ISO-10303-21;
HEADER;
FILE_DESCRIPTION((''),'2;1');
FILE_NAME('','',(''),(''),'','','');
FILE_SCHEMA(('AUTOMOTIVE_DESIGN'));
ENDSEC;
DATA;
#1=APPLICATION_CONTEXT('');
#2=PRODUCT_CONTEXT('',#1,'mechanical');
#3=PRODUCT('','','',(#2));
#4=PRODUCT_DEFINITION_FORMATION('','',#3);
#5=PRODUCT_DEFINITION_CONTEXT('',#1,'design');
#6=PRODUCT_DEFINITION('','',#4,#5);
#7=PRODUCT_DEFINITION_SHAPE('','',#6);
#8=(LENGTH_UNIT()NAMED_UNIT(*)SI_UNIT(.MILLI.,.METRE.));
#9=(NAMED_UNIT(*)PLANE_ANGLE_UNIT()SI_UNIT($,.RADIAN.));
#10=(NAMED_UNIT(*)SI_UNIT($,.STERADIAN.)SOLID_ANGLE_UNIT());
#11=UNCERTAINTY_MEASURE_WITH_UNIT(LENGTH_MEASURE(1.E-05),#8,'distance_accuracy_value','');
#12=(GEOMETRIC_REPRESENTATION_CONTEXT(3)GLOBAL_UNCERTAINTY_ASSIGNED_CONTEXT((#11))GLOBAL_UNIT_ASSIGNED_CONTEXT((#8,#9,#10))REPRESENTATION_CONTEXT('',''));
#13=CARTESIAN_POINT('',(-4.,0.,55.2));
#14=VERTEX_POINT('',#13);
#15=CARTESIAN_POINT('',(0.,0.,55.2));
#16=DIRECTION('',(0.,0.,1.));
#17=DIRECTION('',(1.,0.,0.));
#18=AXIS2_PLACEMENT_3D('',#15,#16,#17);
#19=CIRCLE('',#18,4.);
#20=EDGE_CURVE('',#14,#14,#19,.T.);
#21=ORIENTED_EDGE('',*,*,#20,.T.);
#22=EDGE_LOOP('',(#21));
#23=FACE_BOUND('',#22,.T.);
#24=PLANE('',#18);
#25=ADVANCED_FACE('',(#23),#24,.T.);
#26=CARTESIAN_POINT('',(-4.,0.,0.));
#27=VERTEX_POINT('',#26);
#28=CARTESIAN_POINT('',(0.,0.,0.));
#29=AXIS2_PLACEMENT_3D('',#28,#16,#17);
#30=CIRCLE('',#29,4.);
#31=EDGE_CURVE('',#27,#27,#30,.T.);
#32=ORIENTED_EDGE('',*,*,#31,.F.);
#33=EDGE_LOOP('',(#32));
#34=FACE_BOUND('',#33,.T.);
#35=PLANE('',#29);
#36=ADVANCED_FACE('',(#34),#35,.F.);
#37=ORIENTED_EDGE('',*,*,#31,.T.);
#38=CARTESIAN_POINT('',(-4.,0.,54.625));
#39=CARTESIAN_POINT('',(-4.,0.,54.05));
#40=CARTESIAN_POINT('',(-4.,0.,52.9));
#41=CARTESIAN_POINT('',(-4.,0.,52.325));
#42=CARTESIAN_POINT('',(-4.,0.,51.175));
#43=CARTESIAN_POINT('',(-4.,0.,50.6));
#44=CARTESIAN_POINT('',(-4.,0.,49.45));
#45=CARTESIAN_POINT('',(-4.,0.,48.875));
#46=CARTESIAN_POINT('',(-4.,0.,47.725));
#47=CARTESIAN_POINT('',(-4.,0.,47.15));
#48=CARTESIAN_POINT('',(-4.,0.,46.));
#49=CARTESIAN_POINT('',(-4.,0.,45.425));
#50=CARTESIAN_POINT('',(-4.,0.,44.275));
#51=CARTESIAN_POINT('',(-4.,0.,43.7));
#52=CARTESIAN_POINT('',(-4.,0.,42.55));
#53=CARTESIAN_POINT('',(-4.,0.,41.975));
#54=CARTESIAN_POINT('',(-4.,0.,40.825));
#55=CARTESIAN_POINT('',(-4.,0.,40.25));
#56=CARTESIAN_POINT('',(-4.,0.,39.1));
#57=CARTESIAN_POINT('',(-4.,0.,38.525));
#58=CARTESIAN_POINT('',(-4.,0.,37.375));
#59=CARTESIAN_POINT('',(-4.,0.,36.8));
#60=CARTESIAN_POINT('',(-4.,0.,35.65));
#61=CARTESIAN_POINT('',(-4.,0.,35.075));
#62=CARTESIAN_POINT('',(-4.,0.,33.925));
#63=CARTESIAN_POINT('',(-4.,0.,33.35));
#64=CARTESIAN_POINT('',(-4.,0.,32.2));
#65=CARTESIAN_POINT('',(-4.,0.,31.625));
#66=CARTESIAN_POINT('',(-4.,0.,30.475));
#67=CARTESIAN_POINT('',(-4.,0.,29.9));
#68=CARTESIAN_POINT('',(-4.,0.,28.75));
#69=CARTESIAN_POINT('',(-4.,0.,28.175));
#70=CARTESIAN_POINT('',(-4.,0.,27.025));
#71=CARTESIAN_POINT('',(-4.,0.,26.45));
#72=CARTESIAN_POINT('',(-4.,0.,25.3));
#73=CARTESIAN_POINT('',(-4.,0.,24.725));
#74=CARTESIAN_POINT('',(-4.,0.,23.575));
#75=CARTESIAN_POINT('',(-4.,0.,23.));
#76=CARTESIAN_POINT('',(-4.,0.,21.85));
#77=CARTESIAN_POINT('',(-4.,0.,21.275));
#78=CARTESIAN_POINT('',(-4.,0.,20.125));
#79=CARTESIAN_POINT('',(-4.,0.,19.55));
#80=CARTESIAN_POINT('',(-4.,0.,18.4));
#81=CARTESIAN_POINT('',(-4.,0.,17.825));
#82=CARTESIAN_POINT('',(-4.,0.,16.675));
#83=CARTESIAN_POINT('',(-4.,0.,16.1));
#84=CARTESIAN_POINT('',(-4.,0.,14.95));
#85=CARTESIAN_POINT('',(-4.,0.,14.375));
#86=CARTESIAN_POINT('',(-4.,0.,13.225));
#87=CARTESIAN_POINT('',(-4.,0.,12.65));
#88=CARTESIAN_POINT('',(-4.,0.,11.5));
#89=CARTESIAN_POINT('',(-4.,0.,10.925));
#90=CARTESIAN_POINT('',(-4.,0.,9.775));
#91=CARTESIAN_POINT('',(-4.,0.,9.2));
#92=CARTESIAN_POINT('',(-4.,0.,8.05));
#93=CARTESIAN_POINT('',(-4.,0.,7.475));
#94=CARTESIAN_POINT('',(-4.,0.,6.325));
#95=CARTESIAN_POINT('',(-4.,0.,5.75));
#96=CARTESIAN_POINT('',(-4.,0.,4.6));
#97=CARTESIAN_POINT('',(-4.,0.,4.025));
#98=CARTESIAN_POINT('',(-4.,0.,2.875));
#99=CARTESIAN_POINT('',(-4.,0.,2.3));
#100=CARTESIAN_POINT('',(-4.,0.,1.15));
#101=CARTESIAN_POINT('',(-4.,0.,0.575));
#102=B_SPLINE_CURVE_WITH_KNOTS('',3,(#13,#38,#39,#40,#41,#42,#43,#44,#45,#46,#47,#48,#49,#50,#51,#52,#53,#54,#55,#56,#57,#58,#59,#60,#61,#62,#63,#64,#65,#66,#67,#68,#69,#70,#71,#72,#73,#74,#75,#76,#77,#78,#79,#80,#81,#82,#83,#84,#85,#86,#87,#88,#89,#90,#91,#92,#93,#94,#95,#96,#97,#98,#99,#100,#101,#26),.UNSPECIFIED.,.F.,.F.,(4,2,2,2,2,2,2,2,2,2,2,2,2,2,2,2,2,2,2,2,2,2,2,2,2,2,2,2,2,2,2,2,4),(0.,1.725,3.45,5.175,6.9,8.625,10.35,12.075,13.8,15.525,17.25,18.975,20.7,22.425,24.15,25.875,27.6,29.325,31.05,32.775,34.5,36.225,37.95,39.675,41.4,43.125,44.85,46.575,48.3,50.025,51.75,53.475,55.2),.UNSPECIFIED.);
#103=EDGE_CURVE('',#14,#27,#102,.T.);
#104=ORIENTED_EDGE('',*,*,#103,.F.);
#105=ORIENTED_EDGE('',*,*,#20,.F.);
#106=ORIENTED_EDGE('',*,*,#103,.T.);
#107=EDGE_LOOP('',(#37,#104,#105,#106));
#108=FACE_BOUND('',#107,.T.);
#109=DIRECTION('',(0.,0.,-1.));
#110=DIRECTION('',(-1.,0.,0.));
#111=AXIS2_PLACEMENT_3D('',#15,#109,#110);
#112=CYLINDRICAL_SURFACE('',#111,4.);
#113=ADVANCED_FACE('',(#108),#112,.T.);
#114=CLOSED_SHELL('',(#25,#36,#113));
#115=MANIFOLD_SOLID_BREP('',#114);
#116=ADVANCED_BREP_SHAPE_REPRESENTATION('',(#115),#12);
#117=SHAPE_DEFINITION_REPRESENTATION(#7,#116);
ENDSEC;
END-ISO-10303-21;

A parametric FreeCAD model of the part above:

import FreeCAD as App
import Part
import Sketcher

doc = App.newDocument("Part")
params = doc.addObject("Spreadsheet::Sheet", "Params")
for row, (alias, value) in enumerate([
    ("sketch1_diameter", "8 mm"),
    ("pad1_length", "55.2 mm"),
], start=1):
    params.set(f"A{row}", alias)
    params.set(f"B{row}", "=" + value)
    params.setAlias(f"B{row}", alias)

body = doc.addObject("PartDesign::Body", "Body")

# Sketch on XY plane
sketch1 = body.newObject("Sketcher::SketchObject", "Sketch")
sketch1.AttachmentSupport = (doc.getObject("XY_Plane"), [""])
sketch1.MapMode = "FlatFace"
sketch1.addGeometry(Part.Circle(App.Vector(0, 0, 0), App.Vector(0, 0, 1), 4), False)
sketch1.addConstraint(Sketcher.Constraint("Coincident", 0, 3, -1, 1))
sketch1.addConstraint(Sketcher.Constraint("Diameter", 0, 8.0))
sketch1.setExpression("Constraints[1]", "Params.sketch1_diameter")
pad1 = body.newObject("PartDesign::Pad", "Pad")
pad1.Profile = sketch1
pad1.setExpression("Length", "Params.pad1_length")

doc.recompute()
